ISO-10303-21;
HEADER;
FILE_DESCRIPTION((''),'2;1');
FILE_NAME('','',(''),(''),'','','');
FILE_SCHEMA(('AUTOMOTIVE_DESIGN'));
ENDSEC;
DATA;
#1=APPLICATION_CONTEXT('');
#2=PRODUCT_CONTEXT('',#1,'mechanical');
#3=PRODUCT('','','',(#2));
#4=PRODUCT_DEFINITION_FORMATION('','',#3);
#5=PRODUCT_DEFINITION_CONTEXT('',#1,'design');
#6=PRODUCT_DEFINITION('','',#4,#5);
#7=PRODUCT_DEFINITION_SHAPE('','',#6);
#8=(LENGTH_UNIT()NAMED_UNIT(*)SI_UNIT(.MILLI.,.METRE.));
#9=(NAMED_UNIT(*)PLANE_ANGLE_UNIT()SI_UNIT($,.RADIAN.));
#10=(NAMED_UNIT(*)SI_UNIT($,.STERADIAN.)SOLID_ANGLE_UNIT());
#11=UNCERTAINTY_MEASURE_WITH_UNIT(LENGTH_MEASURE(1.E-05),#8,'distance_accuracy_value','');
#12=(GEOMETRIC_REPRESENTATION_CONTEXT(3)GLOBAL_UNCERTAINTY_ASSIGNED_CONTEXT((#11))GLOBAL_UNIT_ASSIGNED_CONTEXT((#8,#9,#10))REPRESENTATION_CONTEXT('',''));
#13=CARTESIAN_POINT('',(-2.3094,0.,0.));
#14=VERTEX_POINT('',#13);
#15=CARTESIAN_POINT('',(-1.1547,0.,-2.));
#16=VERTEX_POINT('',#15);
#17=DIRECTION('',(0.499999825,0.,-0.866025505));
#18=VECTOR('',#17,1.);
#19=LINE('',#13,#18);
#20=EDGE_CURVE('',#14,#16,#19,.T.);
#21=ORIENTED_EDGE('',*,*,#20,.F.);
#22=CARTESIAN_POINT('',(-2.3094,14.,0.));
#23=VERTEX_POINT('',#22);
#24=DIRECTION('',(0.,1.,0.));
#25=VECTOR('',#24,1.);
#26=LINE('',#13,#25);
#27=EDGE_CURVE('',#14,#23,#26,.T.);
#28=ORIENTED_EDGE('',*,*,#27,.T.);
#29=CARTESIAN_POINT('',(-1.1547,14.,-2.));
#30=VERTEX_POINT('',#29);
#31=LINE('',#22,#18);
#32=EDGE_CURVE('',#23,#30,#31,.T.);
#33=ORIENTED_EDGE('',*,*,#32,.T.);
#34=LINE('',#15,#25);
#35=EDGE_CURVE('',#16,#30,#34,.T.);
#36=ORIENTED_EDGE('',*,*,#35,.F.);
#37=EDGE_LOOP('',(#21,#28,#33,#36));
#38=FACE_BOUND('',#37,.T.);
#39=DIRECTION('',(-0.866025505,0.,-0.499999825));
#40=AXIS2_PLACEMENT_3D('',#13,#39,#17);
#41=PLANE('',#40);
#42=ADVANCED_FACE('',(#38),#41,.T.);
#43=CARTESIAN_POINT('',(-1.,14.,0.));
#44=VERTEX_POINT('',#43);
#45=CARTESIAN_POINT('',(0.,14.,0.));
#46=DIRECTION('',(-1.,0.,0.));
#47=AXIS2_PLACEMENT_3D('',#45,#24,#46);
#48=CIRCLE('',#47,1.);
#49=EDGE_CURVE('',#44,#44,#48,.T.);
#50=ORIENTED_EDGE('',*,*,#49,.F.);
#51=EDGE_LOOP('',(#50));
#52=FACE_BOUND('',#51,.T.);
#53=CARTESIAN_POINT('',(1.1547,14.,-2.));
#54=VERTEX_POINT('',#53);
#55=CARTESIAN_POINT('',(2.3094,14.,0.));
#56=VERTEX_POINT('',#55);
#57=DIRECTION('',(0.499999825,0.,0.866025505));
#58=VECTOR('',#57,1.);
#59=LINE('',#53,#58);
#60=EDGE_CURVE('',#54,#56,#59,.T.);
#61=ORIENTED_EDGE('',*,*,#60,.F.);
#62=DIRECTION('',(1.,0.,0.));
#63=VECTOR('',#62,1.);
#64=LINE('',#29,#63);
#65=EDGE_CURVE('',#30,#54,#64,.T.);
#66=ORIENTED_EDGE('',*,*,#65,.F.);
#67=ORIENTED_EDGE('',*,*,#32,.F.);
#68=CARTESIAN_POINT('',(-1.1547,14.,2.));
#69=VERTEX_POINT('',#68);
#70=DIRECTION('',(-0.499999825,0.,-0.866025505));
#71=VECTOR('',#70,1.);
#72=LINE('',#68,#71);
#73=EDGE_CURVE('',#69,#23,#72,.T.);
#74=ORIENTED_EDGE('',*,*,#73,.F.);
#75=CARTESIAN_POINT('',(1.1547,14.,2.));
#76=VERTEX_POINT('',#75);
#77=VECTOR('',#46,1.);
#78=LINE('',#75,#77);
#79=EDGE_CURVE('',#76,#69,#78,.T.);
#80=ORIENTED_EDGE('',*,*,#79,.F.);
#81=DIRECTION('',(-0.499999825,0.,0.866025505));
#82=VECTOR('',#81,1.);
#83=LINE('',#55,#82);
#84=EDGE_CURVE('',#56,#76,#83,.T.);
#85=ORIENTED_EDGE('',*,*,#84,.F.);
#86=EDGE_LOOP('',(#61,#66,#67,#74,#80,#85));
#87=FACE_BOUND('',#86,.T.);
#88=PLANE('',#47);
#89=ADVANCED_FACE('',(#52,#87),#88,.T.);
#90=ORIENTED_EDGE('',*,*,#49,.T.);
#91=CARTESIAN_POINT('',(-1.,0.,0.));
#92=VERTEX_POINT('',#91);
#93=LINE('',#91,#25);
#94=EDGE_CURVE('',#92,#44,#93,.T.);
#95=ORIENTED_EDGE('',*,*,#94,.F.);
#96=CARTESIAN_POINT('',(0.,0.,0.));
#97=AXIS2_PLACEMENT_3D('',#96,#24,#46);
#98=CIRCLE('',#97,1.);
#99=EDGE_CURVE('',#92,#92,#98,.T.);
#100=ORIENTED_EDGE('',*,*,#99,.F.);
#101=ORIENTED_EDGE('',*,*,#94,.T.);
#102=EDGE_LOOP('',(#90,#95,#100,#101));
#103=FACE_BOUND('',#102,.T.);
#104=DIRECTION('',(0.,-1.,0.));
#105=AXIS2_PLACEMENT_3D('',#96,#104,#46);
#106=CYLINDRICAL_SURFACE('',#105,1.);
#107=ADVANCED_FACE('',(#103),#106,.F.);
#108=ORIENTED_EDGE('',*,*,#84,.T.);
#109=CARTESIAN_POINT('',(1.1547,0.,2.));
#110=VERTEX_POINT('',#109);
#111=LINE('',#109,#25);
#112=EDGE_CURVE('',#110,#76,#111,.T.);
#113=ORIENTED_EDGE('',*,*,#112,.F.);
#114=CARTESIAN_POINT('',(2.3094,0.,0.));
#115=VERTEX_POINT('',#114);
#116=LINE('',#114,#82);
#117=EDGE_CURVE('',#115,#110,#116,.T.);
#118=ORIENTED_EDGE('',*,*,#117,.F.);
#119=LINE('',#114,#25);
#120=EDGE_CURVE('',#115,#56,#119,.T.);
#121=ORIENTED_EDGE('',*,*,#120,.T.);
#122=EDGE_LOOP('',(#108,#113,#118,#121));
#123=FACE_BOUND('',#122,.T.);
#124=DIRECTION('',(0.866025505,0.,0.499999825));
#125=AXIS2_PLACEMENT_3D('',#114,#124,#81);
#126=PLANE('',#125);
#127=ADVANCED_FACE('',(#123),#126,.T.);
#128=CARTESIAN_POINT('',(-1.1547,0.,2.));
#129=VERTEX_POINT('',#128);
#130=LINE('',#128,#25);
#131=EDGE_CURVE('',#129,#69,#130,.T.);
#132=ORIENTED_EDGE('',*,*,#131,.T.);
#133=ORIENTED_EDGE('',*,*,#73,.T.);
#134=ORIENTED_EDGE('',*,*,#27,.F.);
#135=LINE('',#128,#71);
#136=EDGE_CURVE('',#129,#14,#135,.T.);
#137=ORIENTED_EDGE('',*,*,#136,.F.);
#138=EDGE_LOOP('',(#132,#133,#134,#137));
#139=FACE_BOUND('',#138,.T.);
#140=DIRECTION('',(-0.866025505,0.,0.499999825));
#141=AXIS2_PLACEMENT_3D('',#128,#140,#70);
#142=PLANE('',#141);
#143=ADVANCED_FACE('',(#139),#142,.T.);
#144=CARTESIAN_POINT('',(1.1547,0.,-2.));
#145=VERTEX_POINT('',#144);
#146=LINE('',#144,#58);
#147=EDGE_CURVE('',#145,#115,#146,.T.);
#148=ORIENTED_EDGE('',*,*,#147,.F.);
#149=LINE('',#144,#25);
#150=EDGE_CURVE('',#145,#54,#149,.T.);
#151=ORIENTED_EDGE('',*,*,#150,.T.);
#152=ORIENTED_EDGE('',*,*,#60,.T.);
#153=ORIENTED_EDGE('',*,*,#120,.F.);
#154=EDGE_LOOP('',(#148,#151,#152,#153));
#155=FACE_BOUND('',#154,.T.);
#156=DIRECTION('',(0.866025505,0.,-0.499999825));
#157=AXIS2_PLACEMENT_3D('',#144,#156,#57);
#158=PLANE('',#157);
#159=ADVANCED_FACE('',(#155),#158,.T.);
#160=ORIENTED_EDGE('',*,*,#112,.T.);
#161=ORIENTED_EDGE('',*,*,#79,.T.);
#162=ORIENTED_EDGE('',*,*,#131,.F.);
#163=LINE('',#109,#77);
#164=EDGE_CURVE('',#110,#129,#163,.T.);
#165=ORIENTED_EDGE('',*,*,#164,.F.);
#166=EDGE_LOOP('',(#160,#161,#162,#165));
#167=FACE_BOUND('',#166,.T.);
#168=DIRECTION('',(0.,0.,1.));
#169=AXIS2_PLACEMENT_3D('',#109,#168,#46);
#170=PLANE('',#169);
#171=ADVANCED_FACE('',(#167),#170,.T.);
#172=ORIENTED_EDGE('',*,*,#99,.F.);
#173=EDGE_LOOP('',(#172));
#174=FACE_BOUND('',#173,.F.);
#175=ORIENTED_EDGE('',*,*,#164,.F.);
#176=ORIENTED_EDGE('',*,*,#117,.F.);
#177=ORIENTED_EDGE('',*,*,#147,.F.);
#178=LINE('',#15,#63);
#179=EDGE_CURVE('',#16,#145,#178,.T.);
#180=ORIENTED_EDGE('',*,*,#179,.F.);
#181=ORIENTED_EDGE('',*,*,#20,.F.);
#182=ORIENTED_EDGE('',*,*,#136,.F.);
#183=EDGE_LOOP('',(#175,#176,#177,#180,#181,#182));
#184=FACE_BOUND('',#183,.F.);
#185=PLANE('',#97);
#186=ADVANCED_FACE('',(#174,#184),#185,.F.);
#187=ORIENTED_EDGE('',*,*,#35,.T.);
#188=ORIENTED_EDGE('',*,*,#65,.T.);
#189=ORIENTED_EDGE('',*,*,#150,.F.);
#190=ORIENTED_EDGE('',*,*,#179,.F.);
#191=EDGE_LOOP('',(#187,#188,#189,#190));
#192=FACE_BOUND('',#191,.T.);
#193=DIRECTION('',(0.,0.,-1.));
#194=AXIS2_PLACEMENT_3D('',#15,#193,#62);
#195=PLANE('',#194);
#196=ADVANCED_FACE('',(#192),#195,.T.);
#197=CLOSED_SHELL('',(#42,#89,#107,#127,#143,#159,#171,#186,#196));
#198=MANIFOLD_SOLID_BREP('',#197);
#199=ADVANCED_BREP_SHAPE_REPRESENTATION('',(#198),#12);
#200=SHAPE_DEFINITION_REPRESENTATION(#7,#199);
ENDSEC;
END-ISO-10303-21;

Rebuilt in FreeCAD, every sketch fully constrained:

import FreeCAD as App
import Part
import Sketcher
from FreeCAD import Vector
Q = App.Units.Quantity

doc = App.newDocument("Part")
body = doc.addObject("PartDesign::Body", "Body")

sketch1 = doc.addObject("Sketcher::SketchObject", "Sketch")
body.addObject(sketch1)
sketch1.AttachmentSupport = (doc.XZ_Plane, [""])
sketch1.MapMode = "FlatFace"
sketch1.addGeometry([
    Part.LineSegment(Vector(1.2, -2, 0), Vector(-1.2, -2, 0)),
    Part.LineSegment(Vector(-1.2, -2, 0), Vector(-2.3, 0, 0)),
    Part.LineSegment(Vector(-2.3, 0, 0), Vector(-1.2, 2, 0)),
    Part.LineSegment(Vector(-1.2, 2, 0), Vector(1.2, 2, 0)),
    Part.LineSegment(Vector(1.2, 2, 0), Vector(2.3, 0, 0)),
    Part.LineSegment(Vector(2.3, 0, 0), Vector(1.2, -2, 0)),
    Part.Circle(Vector(0, 0, 0), Vector(0, 0, 1), 1),
], False)
sketch1.addConstraint([
    Sketcher.Constraint("Coincident", 0, 2, 1, 1),
    Sketcher.Constraint("Coincident", 1, 2, 2, 1),
    Sketcher.Constraint("Coincident", 2, 2, 3, 1),
    Sketcher.Constraint("Coincident", 3, 2, 4, 1),
    Sketcher.Constraint("Coincident", 4, 2, 5, 1),
    Sketcher.Constraint("Coincident", 5, 2, 0, 1),
    Sketcher.Constraint("Horizontal", 0),
    Sketcher.Constraint("Horizontal", 3),
    Sketcher.Constraint("Coincident", 6, 3, -1, 1),
    Sketcher.Constraint("Symmetric", 0, 2, 3, 2, -1, 1),
    Sketcher.Constraint("Symmetric", 1, 2, 4, 2, -1, 1),
    Sketcher.Constraint("PointOnObject", 1, 2, -1),
    Sketcher.Constraint("Parallel", 2, 5),
    Sketcher.Constraint("Vertical", 0, 2, 2, 2),
    Sketcher.Constraint("Diameter", 6, 2.0),
    Sketcher.Constraint("DistanceY", 0, 2, -1, 1, 2.0),
    Sketcher.Constraint("Angle", 1, Q("120 deg")),
    Sketcher.Constraint("DistanceX", 0, 2, 0, 1, 2.3094),
])
pad1 = doc.addObject("PartDesign::Pad", "Pad")
body.addObject(pad1)
pad1.Profile = sketch1
pad1.Length = 14
pad1.Reversed = True

doc.recompute()
